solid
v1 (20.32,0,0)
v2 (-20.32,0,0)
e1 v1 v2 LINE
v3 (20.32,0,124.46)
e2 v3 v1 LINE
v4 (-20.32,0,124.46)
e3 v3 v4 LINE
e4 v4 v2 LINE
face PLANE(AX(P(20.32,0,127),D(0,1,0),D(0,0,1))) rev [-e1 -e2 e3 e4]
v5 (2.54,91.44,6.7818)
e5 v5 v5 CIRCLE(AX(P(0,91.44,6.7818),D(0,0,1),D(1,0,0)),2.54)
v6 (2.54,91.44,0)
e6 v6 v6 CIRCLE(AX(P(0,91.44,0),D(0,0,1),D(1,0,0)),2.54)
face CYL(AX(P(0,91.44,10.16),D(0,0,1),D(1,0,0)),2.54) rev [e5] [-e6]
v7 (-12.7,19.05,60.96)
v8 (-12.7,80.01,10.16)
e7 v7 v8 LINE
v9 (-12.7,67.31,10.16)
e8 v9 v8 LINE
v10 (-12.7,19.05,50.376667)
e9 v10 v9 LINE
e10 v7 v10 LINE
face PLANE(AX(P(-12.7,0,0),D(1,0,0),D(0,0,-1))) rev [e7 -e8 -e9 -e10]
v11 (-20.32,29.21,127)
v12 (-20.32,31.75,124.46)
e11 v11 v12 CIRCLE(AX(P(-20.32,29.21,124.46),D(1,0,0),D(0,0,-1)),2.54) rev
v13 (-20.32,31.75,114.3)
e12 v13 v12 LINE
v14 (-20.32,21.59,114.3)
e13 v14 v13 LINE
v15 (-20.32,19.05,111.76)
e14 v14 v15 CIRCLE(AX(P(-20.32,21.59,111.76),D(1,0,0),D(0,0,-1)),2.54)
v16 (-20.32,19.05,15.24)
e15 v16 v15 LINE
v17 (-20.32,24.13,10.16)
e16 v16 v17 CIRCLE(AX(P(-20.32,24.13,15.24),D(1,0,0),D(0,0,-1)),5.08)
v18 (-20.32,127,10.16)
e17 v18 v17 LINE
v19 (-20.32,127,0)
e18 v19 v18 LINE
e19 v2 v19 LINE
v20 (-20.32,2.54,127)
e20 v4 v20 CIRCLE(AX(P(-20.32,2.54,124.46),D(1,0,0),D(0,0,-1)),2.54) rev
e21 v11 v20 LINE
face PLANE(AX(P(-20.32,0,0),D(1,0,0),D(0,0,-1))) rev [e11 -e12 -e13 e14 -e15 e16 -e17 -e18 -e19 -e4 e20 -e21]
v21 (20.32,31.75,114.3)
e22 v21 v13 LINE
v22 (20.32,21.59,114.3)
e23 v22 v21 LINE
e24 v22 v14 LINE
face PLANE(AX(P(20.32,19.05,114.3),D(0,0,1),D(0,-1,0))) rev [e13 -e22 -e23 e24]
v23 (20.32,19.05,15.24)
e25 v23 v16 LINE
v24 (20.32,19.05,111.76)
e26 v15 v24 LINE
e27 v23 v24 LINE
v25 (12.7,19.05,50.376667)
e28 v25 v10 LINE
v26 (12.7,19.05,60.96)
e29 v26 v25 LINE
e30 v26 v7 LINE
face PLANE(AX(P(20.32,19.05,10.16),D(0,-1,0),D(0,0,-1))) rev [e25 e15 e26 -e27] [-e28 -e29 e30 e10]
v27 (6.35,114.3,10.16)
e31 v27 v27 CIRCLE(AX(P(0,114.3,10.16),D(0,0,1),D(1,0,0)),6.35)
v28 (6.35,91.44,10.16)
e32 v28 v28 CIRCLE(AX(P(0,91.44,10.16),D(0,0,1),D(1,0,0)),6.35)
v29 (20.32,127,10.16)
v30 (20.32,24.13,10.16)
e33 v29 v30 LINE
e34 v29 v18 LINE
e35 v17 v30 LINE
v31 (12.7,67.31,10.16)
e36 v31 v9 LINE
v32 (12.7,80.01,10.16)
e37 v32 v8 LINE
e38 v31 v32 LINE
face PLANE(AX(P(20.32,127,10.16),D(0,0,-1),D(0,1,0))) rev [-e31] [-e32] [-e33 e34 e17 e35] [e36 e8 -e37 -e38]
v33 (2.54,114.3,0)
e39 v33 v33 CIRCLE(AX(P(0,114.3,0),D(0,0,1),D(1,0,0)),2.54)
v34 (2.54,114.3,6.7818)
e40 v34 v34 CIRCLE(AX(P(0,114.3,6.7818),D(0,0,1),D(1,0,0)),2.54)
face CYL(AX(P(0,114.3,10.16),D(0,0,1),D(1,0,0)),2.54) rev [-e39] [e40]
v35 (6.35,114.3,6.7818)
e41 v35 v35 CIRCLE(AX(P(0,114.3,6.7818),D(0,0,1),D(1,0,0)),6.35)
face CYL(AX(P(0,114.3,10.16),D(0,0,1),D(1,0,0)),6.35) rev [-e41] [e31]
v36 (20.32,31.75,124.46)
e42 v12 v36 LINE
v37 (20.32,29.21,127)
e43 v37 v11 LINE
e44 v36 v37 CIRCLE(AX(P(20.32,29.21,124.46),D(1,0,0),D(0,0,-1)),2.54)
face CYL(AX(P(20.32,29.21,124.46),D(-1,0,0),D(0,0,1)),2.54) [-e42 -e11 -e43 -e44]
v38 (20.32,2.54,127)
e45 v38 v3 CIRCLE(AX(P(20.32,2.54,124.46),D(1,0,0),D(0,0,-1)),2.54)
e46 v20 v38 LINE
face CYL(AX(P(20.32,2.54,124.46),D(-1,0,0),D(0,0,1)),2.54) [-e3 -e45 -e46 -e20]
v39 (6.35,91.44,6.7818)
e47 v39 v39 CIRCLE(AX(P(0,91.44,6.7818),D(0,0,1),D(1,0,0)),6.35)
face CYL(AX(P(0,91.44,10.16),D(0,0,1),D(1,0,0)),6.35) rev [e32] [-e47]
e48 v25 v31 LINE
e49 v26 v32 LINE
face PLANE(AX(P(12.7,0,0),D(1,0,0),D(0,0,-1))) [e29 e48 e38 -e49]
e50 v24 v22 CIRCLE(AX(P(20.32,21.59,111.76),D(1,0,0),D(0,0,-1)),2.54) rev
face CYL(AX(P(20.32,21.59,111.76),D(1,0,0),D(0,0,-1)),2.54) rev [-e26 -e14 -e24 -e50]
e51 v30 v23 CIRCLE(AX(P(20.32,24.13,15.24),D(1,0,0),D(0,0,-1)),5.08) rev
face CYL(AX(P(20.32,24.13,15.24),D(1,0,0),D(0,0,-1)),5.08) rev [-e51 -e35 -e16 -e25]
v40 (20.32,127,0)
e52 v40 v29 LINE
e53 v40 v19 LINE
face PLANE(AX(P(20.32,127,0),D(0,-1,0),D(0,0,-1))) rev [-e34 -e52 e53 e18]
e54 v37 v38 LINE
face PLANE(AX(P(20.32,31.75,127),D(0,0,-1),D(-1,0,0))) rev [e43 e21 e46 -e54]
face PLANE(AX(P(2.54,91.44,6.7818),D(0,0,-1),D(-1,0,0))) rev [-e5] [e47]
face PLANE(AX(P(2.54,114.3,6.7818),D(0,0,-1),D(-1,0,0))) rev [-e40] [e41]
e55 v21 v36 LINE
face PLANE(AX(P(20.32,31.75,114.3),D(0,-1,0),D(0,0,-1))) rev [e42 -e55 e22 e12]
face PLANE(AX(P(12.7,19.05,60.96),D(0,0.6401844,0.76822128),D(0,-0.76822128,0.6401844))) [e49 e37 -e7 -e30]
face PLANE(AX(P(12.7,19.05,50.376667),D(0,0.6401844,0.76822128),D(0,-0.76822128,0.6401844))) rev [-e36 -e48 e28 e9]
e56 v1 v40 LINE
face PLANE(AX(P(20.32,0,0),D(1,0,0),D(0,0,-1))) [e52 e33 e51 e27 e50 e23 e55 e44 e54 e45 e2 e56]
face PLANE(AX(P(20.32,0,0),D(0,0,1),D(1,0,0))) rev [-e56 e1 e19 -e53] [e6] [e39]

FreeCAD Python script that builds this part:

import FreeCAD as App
import Part
import Sketcher

V = App.Vector
Q = App.Units.Quantity


def edges_at(feature, points):
    """Names of the edges that pass closest to the given points."""
    edges = feature.Shape.Edges
    near = lambda p: min(range(len(edges)), key=lambda i: edges[i].distToShape(Part.Vertex(*p))[0])
    return sorted({f"Edge{near(p) + 1}" for p in points})

doc = App.newDocument("Part")
body = doc.addObject("PartDesign::Body", "Body")

# Sketch on YZ plane
sketch1 = body.newObject("Sketcher::SketchObject", "Sketch")
sketch1.AttachmentSupport = (doc.getObject("YZ_Plane"), [""])
sketch1.MapMode = "FlatFace"
sketch1.addGeometry(Part.LineSegment(V(0, 0, 0), V(127, 0, 0)), False)
sketch1.addGeometry(Part.LineSegment(V(127, 0, 0), V(127, 10, 0)), False)
sketch1.addGeometry(Part.LineSegment(V(127, 10, 0), V(19, 10, 0)), False)
sketch1.addGeometry(Part.LineSegment(V(19, 10, 0), V(19, 114, 0)), False)
sketch1.addGeometry(Part.LineSegment(V(19, 114, 0), V(32, 114, 0)), False)
sketch1.addGeometry(Part.LineSegment(V(32, 114, 0), V(32, 127, 0)), False)
sketch1.addGeometry(Part.LineSegment(V(32, 127, 0), V(0, 127, 0)), False)
sketch1.addGeometry(Part.LineSegment(V(0, 127, 0), V(0, 0, 0)), False)
sketch1.addConstraint(Sketcher.Constraint("Coincident", 0, 2, 1, 1))
sketch1.addConstraint(Sketcher.Constraint("Coincident", 1, 2, 2, 1))
sketch1.addConstraint(Sketcher.Constraint("Coincident", 2, 2, 3, 1))
sketch1.addConstraint(Sketcher.Constraint("Coincident", 3, 2, 4, 1))
sketch1.addConstraint(Sketcher.Constraint("Coincident", 4, 2, 5, 1))
sketch1.addConstraint(Sketcher.Constraint("Coincident", 5, 2, 6, 1))
sketch1.addConstraint(Sketcher.Constraint("Coincident", 6, 2, 7, 1))
sketch1.addConstraint(Sketcher.Constraint("Coincident", 7, 2, 0, 1))
sketch1.addConstraint(Sketcher.Constraint("Horizontal", 0))
sketch1.addConstraint(Sketcher.Constraint("Vertical", 1))
sketch1.addConstraint(Sketcher.Constraint("Horizontal", 2))
sketch1.addConstraint(Sketcher.Constraint("Vertical", 3))
sketch1.addConstraint(Sketcher.Constraint("Horizontal", 4))
sketch1.addConstraint(Sketcher.Constraint("Vertical", 5))
sketch1.addConstraint(Sketcher.Constraint("Horizontal", 6))
sketch1.addConstraint(Sketcher.Constraint("Vertical", 7))
sketch1.addConstraint(Sketcher.Constraint("Coincident", 7, 2, -1, 1))
sketch1.addConstraint(Sketcher.Constraint("Equal", 4, 5))
sketch1.addConstraint(Sketcher.Constraint("Equal", 0, 7))
sketch1.addConstraint(Sketcher.Constraint("DistanceX", 0, 1, 0, 2, Q("5 in")))
sketch1.addConstraint(Sketcher.Constraint("DistanceX", 4, 1, 4, 2, Q("0.5 in")))
sketch1.addConstraint(Sketcher.Constraint("DistanceY", 1, 1, 1, 2, Q("0.4 in")))
sketch1.addConstraint(Sketcher.Constraint("DistanceX", 2, 2, 2, 1, Q("4.25 in")))
pad1 = body.newObject("PartDesign::Pad", "Pad")
pad1.Profile = sketch1
pad1.Length = Q("1.6 in")
pad1.Midplane = True

# Sketch on YZ plane
sketch2 = body.newObject("Sketcher::SketchObject", "Sketch001")
sketch2.AttachmentSupport = (doc.getObject("YZ_Plane"), [""])
sketch2.MapMode = "FlatFace"
sketch2.addGeometry(Part.LineSegment(V(80, 10, 0), V(19, 61, 0)), False)
sketch2.addGeometry(Part.LineSegment(V(19, 61, 0), V(19, 50, 0)), False)
sketch2.addGeometry(Part.LineSegment(V(19, 50, 0), V(67, 10, 0)), False)
sketch2.addGeometry(Part.LineSegment(V(67, 10, 0), V(80, 10, 0)), False)
sketch2.addConstraint(Sketcher.Constraint("Coincident", 0, 2, 1, 1))
sketch2.addConstraint(Sketcher.Constraint("Coincident", 1, 2, 2, 1))
sketch2.addConstraint(Sketcher.Constraint("Coincident", 2, 2, 3, 1))
sketch2.addConstraint(Sketcher.Constraint("Coincident", 3, 2, 0, 1))
sketch2.addConstraint(Sketcher.Constraint("Vertical", 1))
sketch2.addConstraint(Sketcher.Constraint("Horizontal", 3))
sketch2.addConstraint(Sketcher.Constraint("Parallel", 0, 2))
sketch2.addConstraint(Sketcher.Constraint("DistanceX", 3, 1, 3, 2, Q("0.5 in")))
sketch2.addConstraint(Sketcher.Constraint("DistanceY", 2, 2, 0, 2, Q("2 in")))
sketch2.addConstraint(Sketcher.Constraint("DistanceY", -1, 1, 0, 2, Q("2.4 in")))
sketch2.addConstraint(Sketcher.Constraint("DistanceX", 1, 2, 2, 2, Q("1.9 in")))
sketch2.addConstraint(Sketcher.Constraint("DistanceX", -1, 1, 0, 2, Q("0.75 in")))
pad2 = body.newObject("PartDesign::Pad", "Pad001")
pad2.Profile = sketch2
pad2.Length = Q("1 in")
pad2.Midplane = True

# Sketch on XY plane
sketch3 = body.newObject("Sketcher::SketchObject", "Sketch002")
sketch3.AttachmentSupport = (doc.getObject("XY_Plane"), [""])
sketch3.MapMode = "FlatFace"
sketch3.AttachmentOffset = App.Placement(V(0, 0, 0.4 * 25.4), App.Rotation())
sketch3.addGeometry(Part.Circle(V(0, 91.4, 0), V(0, 0, 1), 2.5), False)
sketch3.addGeometry(Part.Circle(V(0, 114.3, 0), V(0, 0, 1), 2.5), False)
sketch3.addConstraint(Sketcher.Constraint("Equal", 0, 1))
sketch3.addConstraint(Sketcher.Constraint("PointOnObject", 0, 3, -2))
sketch3.addConstraint(Sketcher.Constraint("PointOnObject", 1, 3, -2))
sketch3.addConstraint(Sketcher.Constraint("Diameter", 0, Q("0.2 in")))
sketch3.addConstraint(Sketcher.Constraint("DistanceY", -1, 1, 0, 3, Q("3.6 in")))
sketch3.addConstraint(Sketcher.Constraint("DistanceY", -1, 1, 1, 3, Q("4.5 in")))
doc.recompute()
hole = body.newObject("PartDesign::Hole", "Hole")
hole.Profile = sketch3
hole.ThreadType = "None"
hole.Diameter = Q("0.2 in")
hole.DepthType = "ThroughAll"
hole.HoleCutType = "Counterbore"
hole.HoleCutDiameter = Q("0.5 in")
hole.HoleCutDepth = Q("0.133 in")
doc.recompute()

fillet = body.newObject("PartDesign::Fillet", "Fillet")
fillet.Base = (hole, edges_at(hole, [(0, 19.05, 10.16)]))
fillet.Radius = Q("0.2 in")
doc.recompute()

fillet2 = body.newObject("PartDesign::Fillet", "Fillet001")
fillet2.Base = (fillet, edges_at(fillet, [(0, 19.05, 114.3)]))
fillet2.Radius = Q("0.1 in")
doc.recompute()

fillet3 = body.newObject("PartDesign::Fillet", "Fillet002")
fillet3.Base = (fillet2, edges_at(fillet2, [(0, 0, 127)]))
fillet3.Radius = Q("0.1 in")
doc.recompute()

fillet4 = body.newObject("PartDesign::Fillet", "Fillet003")
fillet4.Base = (fillet3, edges_at(fillet3, [(0, 31.75, 127)]))
fillet4.Radius = Q("0.1 in")

doc.recompute()
